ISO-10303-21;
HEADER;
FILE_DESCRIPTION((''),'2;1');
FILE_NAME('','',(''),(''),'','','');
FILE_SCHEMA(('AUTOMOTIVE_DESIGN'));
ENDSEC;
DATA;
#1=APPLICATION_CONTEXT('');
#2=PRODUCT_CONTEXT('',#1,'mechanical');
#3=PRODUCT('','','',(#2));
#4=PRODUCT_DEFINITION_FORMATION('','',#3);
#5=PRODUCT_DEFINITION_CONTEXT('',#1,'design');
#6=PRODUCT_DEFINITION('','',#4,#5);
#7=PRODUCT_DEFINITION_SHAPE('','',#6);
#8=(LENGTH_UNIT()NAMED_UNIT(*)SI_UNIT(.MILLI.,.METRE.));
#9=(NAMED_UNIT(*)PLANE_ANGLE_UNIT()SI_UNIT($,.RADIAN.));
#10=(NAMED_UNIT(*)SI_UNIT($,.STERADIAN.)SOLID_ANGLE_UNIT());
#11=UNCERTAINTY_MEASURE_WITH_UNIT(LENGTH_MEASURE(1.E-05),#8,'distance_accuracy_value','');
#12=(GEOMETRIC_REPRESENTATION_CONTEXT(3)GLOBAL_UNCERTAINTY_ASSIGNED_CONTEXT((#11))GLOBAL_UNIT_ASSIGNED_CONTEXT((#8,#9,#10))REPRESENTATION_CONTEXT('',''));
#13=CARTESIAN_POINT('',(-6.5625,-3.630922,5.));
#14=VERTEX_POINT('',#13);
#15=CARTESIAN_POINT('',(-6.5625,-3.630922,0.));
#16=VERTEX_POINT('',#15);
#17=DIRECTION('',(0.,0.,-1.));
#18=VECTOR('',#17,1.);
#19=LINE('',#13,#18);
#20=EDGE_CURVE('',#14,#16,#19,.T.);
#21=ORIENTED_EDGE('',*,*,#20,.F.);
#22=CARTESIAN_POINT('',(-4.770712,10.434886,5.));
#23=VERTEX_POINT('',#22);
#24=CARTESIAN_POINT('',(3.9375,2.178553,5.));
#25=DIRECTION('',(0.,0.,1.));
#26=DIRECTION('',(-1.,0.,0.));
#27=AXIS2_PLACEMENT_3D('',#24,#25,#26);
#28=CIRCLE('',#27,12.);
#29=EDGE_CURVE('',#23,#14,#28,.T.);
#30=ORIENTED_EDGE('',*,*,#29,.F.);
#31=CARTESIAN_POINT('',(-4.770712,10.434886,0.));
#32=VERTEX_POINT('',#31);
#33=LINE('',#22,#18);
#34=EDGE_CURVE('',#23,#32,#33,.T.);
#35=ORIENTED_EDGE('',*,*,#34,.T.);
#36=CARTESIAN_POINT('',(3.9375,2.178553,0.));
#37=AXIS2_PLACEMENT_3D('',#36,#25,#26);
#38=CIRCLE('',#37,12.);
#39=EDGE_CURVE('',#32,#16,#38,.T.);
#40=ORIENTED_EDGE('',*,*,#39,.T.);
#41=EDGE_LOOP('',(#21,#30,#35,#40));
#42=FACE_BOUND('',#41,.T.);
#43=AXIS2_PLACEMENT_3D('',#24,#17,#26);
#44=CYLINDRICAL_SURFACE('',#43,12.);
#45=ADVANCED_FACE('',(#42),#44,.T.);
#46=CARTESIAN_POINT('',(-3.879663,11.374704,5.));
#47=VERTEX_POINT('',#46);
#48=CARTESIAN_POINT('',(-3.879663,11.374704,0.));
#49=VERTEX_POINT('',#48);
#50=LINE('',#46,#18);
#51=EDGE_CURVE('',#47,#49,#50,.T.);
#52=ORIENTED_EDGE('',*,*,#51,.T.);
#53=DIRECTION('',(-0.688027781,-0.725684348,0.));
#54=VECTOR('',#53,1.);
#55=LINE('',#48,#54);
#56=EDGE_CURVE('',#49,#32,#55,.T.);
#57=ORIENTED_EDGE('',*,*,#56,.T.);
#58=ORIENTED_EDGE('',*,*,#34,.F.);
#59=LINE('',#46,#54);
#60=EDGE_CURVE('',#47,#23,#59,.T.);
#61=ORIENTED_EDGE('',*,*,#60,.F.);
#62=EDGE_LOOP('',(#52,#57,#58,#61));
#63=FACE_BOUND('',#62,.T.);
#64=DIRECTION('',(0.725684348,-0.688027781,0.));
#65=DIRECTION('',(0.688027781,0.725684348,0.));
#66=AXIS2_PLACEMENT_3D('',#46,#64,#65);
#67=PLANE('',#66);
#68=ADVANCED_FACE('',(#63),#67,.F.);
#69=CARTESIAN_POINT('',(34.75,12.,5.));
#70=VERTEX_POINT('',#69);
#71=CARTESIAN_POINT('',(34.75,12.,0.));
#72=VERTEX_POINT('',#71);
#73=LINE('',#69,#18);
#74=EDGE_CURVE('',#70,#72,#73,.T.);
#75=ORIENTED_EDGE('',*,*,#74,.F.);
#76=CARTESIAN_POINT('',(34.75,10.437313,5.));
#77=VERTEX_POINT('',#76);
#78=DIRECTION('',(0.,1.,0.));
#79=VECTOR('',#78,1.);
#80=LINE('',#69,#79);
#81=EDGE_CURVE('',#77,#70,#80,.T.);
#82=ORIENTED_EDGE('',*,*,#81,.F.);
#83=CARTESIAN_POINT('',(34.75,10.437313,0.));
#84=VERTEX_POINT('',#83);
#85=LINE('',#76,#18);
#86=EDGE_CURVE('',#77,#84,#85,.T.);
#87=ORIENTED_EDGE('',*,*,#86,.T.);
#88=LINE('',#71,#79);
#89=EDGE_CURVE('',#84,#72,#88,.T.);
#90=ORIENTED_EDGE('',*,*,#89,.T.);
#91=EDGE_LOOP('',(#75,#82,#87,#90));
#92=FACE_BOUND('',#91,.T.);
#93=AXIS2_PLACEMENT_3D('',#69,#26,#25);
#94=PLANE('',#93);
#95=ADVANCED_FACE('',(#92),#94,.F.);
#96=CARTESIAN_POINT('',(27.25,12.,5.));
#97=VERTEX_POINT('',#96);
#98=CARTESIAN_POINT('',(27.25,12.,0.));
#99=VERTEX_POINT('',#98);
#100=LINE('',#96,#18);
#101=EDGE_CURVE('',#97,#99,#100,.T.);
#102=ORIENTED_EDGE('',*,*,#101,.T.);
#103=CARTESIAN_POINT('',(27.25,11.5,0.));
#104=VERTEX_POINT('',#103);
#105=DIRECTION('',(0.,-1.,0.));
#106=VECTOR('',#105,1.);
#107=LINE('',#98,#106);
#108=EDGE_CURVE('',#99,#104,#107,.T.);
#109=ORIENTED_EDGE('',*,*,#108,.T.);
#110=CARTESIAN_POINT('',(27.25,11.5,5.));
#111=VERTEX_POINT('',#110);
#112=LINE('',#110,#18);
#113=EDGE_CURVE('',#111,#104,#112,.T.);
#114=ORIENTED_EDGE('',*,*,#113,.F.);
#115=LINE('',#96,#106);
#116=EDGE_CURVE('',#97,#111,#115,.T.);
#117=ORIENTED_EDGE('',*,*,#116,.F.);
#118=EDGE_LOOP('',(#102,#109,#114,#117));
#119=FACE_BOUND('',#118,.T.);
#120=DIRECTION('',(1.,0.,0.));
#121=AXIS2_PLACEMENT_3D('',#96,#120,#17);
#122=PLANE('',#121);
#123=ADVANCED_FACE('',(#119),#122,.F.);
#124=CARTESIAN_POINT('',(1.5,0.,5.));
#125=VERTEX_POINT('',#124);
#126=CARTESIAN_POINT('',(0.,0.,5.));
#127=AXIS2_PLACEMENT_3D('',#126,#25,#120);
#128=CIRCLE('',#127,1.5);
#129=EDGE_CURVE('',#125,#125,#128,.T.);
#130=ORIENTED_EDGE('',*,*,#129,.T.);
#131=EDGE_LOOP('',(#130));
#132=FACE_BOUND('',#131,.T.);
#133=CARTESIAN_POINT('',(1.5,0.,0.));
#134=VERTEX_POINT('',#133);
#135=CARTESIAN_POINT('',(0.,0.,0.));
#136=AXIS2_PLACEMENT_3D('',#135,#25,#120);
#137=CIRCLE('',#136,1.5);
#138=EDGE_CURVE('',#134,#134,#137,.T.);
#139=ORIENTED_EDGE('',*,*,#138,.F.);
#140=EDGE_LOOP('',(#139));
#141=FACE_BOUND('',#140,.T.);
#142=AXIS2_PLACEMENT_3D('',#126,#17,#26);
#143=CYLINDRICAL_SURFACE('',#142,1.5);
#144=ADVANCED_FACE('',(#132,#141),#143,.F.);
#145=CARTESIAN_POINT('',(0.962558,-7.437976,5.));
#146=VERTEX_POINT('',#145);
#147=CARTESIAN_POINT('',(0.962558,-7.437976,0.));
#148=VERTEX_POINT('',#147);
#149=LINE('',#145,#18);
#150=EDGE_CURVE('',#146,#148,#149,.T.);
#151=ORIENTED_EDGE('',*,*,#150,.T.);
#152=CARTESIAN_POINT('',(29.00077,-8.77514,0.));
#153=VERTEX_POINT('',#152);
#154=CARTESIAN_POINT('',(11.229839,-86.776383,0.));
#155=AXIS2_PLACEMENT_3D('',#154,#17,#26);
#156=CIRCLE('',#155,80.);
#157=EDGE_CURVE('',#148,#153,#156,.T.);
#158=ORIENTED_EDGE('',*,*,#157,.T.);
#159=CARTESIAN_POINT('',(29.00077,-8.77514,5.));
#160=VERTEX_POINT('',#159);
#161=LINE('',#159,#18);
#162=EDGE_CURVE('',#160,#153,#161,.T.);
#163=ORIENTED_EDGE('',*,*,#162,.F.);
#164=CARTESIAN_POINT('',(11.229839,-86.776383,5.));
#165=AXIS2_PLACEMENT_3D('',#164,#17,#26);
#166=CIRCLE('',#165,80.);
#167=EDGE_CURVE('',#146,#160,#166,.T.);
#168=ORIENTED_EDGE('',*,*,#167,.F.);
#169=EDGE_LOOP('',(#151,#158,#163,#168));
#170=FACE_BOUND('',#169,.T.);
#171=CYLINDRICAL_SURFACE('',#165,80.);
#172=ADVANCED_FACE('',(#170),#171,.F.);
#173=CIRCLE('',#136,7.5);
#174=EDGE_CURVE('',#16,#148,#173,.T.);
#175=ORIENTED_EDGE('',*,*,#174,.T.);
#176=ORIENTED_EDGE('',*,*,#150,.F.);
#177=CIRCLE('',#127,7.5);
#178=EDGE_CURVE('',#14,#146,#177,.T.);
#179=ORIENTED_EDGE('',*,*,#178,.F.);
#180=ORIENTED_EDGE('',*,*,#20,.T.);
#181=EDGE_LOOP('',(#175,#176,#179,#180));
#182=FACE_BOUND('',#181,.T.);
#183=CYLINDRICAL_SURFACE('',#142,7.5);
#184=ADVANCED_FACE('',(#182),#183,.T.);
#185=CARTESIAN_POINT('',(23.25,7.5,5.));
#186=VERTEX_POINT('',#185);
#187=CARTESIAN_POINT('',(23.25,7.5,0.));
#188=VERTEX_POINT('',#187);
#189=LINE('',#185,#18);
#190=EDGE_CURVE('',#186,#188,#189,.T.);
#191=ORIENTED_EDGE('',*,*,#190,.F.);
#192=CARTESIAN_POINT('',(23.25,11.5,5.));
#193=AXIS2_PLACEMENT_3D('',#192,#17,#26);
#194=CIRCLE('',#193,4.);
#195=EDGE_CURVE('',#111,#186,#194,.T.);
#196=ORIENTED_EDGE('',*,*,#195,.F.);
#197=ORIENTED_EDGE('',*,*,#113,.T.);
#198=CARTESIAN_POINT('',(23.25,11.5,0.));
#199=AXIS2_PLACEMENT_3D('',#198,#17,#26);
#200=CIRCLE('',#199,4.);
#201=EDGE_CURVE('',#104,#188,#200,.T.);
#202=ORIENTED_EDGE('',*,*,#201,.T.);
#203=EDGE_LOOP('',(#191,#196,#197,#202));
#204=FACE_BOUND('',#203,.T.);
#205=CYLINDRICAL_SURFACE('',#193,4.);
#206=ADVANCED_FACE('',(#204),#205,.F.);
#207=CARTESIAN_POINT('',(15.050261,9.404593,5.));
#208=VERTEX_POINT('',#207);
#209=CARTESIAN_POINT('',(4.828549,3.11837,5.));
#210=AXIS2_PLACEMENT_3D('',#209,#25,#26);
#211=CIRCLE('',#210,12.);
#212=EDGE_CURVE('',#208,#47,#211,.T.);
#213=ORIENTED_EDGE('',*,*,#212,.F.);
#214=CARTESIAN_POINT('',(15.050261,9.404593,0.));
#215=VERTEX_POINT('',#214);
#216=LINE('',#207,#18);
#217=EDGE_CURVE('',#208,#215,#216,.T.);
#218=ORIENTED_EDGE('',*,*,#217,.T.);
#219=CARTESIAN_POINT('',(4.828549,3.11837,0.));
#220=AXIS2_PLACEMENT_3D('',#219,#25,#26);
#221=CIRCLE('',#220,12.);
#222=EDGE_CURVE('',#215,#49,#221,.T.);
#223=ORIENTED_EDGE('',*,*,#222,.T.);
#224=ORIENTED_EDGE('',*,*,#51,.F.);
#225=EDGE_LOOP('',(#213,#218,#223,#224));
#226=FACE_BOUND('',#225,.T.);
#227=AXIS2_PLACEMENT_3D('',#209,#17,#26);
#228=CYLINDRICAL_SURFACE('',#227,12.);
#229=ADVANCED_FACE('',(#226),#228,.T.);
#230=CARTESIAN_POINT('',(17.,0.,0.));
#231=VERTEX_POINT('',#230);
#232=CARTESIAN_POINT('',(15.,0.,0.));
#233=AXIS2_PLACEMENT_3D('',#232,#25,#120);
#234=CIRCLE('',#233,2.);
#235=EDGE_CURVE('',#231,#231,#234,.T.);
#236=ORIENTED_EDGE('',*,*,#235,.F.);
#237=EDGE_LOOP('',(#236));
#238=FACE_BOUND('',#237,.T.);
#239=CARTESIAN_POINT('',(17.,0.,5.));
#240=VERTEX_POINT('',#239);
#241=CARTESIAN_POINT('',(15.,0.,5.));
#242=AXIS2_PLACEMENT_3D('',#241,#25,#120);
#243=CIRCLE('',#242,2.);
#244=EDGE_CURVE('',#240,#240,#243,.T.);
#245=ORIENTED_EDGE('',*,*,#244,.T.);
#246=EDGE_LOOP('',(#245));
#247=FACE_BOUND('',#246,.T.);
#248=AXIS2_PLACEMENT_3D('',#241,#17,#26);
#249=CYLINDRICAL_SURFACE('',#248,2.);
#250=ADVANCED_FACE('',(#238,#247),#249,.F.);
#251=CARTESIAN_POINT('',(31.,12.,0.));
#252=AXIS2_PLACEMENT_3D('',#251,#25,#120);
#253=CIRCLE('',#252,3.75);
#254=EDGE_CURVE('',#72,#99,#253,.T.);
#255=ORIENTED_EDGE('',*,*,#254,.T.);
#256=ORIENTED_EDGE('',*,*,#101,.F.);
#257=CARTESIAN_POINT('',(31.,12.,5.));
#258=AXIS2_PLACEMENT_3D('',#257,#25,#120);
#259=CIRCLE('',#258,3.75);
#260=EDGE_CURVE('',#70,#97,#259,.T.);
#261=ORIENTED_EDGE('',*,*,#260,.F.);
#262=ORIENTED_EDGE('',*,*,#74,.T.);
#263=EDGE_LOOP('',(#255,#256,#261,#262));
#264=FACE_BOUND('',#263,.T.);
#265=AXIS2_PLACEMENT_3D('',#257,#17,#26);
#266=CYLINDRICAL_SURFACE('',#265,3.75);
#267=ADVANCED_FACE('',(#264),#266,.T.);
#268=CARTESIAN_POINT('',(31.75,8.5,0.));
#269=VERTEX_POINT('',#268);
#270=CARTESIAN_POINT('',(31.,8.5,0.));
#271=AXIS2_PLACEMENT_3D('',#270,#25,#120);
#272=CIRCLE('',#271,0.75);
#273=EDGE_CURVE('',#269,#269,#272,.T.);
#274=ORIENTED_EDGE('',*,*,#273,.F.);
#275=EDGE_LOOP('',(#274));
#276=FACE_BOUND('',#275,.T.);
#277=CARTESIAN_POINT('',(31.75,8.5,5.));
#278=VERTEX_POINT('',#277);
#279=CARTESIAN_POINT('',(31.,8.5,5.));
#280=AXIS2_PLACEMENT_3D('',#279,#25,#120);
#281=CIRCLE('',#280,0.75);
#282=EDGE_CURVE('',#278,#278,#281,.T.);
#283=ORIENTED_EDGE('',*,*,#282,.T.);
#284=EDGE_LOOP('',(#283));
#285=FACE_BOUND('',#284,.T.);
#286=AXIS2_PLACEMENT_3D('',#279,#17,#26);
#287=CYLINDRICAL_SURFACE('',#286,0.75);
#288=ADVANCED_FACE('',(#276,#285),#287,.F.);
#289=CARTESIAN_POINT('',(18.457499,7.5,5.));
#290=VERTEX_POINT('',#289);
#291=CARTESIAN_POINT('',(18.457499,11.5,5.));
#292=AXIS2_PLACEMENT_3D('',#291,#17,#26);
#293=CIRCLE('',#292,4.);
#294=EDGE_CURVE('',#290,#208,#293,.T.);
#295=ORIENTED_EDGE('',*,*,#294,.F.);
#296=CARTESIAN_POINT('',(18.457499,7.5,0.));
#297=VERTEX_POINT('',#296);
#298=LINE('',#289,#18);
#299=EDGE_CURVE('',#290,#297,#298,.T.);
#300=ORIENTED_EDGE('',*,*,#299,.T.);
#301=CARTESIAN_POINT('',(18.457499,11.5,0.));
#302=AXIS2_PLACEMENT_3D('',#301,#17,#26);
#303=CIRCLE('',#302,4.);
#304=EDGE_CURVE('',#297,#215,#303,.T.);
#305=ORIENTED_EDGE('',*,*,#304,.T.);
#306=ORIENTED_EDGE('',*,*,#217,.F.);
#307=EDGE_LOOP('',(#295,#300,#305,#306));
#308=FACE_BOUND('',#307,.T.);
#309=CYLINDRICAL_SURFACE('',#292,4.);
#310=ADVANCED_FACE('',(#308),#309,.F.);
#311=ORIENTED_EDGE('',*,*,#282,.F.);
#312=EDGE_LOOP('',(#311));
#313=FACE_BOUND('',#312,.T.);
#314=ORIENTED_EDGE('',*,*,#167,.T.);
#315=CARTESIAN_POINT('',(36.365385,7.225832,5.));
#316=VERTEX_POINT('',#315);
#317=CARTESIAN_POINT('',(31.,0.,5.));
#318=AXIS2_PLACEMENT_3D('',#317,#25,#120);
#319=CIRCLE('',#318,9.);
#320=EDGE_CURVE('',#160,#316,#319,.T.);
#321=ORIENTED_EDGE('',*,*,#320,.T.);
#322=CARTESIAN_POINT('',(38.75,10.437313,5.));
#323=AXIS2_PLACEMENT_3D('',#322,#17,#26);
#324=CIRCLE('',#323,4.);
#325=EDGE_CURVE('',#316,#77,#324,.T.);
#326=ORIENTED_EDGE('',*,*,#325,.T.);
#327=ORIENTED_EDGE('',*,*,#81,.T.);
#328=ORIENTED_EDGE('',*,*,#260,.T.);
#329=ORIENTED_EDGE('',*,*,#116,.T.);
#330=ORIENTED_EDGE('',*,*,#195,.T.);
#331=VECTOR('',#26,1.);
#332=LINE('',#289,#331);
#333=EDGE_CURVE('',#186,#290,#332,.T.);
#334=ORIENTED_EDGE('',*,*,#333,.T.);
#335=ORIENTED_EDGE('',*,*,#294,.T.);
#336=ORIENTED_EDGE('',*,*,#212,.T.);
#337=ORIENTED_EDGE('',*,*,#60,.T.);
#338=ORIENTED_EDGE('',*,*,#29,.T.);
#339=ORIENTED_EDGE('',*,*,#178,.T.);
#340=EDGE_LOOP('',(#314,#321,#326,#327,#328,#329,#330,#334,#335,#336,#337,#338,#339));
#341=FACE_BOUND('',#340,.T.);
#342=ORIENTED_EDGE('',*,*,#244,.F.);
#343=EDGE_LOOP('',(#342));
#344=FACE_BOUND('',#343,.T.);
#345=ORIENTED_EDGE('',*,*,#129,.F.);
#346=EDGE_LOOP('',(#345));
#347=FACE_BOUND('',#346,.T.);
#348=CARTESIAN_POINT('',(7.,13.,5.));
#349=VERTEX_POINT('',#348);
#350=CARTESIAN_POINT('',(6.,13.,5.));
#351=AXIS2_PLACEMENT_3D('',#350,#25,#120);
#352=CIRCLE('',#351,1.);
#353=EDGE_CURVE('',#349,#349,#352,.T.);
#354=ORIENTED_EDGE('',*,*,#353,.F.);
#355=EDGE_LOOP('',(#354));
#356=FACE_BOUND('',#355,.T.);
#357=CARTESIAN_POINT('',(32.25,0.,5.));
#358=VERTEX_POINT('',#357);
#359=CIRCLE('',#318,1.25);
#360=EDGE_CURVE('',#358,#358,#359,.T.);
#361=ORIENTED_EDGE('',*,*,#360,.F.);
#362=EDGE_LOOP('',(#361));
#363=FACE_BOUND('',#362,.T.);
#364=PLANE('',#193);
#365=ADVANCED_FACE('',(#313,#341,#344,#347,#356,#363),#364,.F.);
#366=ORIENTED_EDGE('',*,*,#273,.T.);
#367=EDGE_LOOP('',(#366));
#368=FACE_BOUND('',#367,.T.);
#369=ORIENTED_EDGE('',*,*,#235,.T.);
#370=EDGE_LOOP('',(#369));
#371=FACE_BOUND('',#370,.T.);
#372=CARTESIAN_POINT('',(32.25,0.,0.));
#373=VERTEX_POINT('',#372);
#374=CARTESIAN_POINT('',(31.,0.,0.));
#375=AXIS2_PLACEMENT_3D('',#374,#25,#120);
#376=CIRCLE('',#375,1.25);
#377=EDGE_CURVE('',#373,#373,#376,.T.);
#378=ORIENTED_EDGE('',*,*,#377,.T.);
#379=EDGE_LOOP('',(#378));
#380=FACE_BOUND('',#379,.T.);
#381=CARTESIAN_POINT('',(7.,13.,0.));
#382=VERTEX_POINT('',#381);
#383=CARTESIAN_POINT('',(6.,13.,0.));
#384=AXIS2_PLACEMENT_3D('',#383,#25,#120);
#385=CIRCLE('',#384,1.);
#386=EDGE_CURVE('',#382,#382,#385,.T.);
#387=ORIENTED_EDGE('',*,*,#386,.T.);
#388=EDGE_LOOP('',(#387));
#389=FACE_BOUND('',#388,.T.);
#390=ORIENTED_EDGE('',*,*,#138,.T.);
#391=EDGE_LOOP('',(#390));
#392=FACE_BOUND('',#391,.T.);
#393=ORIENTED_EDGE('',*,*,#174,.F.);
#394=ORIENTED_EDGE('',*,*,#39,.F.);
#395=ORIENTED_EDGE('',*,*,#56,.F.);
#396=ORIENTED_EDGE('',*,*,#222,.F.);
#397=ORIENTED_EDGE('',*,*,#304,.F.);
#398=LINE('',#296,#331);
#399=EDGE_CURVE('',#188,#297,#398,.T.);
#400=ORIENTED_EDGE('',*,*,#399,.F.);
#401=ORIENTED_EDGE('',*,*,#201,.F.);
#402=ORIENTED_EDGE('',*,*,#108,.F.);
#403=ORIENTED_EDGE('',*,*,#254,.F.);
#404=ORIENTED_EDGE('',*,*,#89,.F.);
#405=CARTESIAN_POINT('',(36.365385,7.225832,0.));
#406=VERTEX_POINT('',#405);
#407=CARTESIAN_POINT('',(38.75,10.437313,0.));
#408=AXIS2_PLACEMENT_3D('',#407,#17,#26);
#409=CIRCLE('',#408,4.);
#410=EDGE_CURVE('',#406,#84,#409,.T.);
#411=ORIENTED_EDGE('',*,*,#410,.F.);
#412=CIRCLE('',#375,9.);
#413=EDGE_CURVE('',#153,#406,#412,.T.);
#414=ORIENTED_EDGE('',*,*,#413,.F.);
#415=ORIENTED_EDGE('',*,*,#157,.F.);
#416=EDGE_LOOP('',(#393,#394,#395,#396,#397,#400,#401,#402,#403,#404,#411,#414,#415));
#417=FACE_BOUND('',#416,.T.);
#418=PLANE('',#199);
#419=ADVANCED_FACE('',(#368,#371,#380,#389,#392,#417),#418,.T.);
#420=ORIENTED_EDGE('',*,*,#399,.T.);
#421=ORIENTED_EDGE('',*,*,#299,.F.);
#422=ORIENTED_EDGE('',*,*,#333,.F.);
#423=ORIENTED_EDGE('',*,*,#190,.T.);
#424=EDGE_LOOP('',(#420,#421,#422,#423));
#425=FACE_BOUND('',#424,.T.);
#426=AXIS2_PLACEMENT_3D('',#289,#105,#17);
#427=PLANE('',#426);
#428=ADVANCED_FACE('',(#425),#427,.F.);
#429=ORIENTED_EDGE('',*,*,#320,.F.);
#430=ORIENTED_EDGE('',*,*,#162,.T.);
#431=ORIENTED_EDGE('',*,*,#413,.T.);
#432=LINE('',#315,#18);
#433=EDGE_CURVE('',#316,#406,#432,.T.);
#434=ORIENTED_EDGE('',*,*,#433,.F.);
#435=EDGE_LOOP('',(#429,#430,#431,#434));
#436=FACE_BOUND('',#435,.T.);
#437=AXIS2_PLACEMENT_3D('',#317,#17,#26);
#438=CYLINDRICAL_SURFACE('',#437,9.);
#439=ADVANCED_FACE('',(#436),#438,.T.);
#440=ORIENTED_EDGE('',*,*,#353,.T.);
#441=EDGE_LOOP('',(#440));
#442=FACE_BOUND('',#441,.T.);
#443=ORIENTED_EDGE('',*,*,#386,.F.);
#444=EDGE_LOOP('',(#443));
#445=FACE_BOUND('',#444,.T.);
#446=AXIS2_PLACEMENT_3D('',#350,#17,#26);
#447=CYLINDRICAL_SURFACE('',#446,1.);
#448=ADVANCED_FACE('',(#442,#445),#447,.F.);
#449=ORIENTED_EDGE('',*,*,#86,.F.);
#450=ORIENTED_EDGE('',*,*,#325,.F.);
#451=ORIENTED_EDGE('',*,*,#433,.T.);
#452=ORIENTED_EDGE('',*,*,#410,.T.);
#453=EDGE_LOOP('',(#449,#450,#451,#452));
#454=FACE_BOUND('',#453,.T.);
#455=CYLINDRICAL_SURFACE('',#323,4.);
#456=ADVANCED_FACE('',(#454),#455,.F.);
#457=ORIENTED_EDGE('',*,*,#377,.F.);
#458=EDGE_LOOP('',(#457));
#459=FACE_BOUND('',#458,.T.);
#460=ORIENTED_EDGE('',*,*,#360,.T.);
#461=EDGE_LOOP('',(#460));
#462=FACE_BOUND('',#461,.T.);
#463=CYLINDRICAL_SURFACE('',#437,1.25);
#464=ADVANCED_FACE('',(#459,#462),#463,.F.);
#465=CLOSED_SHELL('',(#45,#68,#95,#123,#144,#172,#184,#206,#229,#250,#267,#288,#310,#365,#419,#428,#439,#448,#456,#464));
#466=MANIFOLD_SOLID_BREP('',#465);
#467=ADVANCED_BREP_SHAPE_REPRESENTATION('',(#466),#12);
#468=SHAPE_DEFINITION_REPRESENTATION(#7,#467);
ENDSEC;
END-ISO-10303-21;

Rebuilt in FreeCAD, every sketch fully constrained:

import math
import FreeCAD as App
import Part
import Sketcher

doc = App.newDocument("Part")
body = doc.addObject("PartDesign::Body", "Body")

# Sketch on XY plane
sketch1 = body.newObject("Sketcher::SketchObject", "Sketch")
sketch1.AttachmentSupport = (doc.getObject("XY_Plane"), [""])
sketch1.MapMode = "FlatFace"
sketch1.addGeometry([
    Part.LineSegment(App.Vector(23.25, 7.5, 0), App.Vector(18.457499, 7.5, 0)),  # 0
    Part.ArcOfCircle(Part.Circle(App.Vector(18.457499, 11.5, 0), App.Vector(0, 0, 1), 4), math.radians(-148.409017), math.radians(-90)),  # 1
    Part.ArcOfCircle(Part.Circle(App.Vector(4.828549, 3.11837, 0), App.Vector(0, 0, 1), 12), math.radians(31.590983), math.radians(136.525807)),  # 2
    Part.LineSegment(App.Vector(-3.879663, 11.374704, 0), App.Vector(-4.770712, 10.434886, 0)),  # 3
    Part.ArcOfCircle(Part.Circle(App.Vector(3.9375, 2.178553, 0), App.Vector(0, 0, 1), 12), math.radians(136.525807), math.radians(208.955024)),  # 4
    Part.ArcOfCircle(Part.Circle(App.Vector(0, 0, 0), App.Vector(0, 0, 1), 7.5), math.radians(-151.044976), math.radians(-82.626264)),  # 5
    Part.ArcOfCircle(Part.Circle(App.Vector(11.229839, -86.776383, 0), App.Vector(0, 0, 1), 80), math.radians(77.165441), math.radians(97.373736)),  # 6
    Part.ArcOfCircle(Part.Circle(App.Vector(31, 0, 0), App.Vector(0, 0, 1), 9), math.radians(-102.834559), math.radians(53.405069)),  # 7
    Part.ArcOfCircle(Part.Circle(App.Vector(38.75, 10.437313, 0), App.Vector(0, 0, 1), 4), math.radians(180), math.radians(233.405069)),  # 8
    Part.LineSegment(App.Vector(34.75, 10.437313, 0), App.Vector(34.75, 12, 0)),  # 9
    Part.ArcOfCircle(Part.Circle(App.Vector(31, 12, 0), App.Vector(0, 0, 1), 3.75), math.radians(0), math.radians(180)),  # 10
    Part.LineSegment(App.Vector(27.25, 12, 0), App.Vector(27.25, 11.5, 0)),  # 11
    Part.ArcOfCircle(Part.Circle(App.Vector(23.25, 11.5, 0), App.Vector(0, 0, 1), 4), math.radians(-90), math.radians(0)),  # 12
    Part.Circle(App.Vector(31, 0, 0), App.Vector(0, 0, 1), 1.25),  # 13
    Part.Circle(App.Vector(15, 0, 0), App.Vector(0, 0, 1), 2),  # 14
    Part.Circle(App.Vector(0, 0, 0), App.Vector(0, 0, 1), 1.5),  # 15
    Part.Circle(App.Vector(31, 8.5, 0), App.Vector(0, 0, 1), 0.75),  # 16
    Part.Circle(App.Vector(6, 13, 0), App.Vector(0, 0, 1), 1),  # 17
], False)
sketch1.addConstraint([
    Sketcher.Constraint("Tangent", 0, 2, 1, 2),
    Sketcher.Constraint("Tangent", 1, 1, 2, 1),
    Sketcher.Constraint("Tangent", 2, 2, 3, 1),
    Sketcher.Constraint("Tangent", 3, 2, 4, 1),
    Sketcher.Constraint("Tangent", 4, 2, 5, 1),
    Sketcher.Constraint("Tangent", 5, 2, 6, 2),
    Sketcher.Constraint("Tangent", 6, 1, 7, 1),
    Sketcher.Constraint("Tangent", 7, 2, 8, 2),
    Sketcher.Constraint("Tangent", 8, 1, 9, 1),
    Sketcher.Constraint("Tangent", 9, 2, 10, 1),
    Sketcher.Constraint("Tangent", 10, 2, 11, 1),
    Sketcher.Constraint("Tangent", 11, 2, 12, 2),
    Sketcher.Constraint("Tangent", 12, 1, 0, 1),
    Sketcher.Constraint("Horizontal", 0),
    Sketcher.Constraint("Vertical", 9),
    Sketcher.Constraint("Vertical", 11),
    Sketcher.Constraint("Coincident", 5, 3, -1, 1),
    Sketcher.Constraint("Coincident", 15, 3, -1, 1),
    Sketcher.Constraint("Coincident", 13, 3, 7, 3),
    Sketcher.Constraint("Equal", 2, 4),
    Sketcher.Constraint("Equal", 1, 8),
    Sketcher.Constraint("Equal", 8, 12),
    Sketcher.Constraint("PointOnObject", 7, 3, -1),
    Sketcher.Constraint("PointOnObject", 14, 3, -1),
    Sketcher.Constraint("Vertical", 7, 3, 10, 3),
    Sketcher.Constraint("Vertical", 13, 3, 16, 3),
    Sketcher.Constraint("Diameter", 14, 4.0),
    Sketcher.Constraint("Diameter", 15, 3.0),
    Sketcher.Constraint("Diameter", 17, 2.0),
    Sketcher.Constraint("Radius", 1, 4.0),
    Sketcher.Constraint("Radius", 2, 12.0),
    Sketcher.Constraint("Radius", 6, 80.0),
    Sketcher.Constraint("Radius", 7, 9.0),
    Sketcher.Constraint("Diameter", 13, 2.5),
    Sketcher.Constraint("Diameter", 16, 1.5),
    Sketcher.Constraint("Radius", 5, 7.5),
    Sketcher.Constraint("Radius", 10, 3.75),
    Sketcher.Constraint("DistanceY", 11, 2, 11, 1, 0.5),
    Sketcher.Constraint("DistanceX", -1, 1, 7, 3, 31.0),
    Sketcher.Constraint("DistanceY", -1, 1, 10, 3, 12.0),
    Sketcher.Constraint("DistanceX", -1, 1, 14, 3, 15.0),
    Sketcher.Constraint("DistanceX", -1, 1, 17, 3, 6.0),
    Sketcher.Constraint("DistanceY", -1, 1, 17, 3, 13.0),
    Sketcher.Constraint("DistanceY", 16, 3, 12, 3, 3.0),
    Sketcher.Constraint("DistanceX", 4, 2, 4, 3, 10.5),
    Sketcher.Constraint("DistanceX", 4, 3, 1, 3, 14.519999),
    Sketcher.Constraint("DistanceX", -1, 1, 2, 3, 4.828549),
])
pad1 = body.newObject("PartDesign::Pad", "Pad")
pad1.Profile = sketch1
pad1.Length = 5

doc.recompute()
